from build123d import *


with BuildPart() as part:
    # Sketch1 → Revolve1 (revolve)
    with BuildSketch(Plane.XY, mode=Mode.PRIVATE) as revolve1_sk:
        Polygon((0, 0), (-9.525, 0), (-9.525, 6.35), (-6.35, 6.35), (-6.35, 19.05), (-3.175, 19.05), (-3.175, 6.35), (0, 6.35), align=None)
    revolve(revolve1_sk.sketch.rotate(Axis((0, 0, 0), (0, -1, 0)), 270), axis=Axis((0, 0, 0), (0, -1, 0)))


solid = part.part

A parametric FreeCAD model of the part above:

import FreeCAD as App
import Part
import Sketcher
from FreeCAD import Vector
Q = App.Units.Quantity


def add_polygon(sketch, points):
    """Adds a closed chain of lines whose ends are joined by coincident constraints."""
    first, n = sketch.GeometryCount, len(points)
    for a, b in zip(points, points[1:] + points[:1]):
        sketch.addGeometry(Part.LineSegment(App.Vector(*a, 0), App.Vector(*b, 0)), False)
    for i in range(n):
        sketch.addConstraint(Sketcher.Constraint("Coincident", first + i, 2, first + (i + 1) % n, 1))

doc = App.newDocument("Part")
body = doc.addObject("PartDesign::Body", "Body")

# Sketch on XY plane
sketch1 = body.newObject("Sketcher::SketchObject", "Sketch")
sketch1.AttachmentSupport = (doc.getObject("XY_Plane"), [""])
sketch1.MapMode = "FlatFace"
add_polygon(sketch1, [(-9.5, 0), (0, 0), (0, 6.3), (-3.2, 6.3), (-3.2, 19.1), (-6.3, 19.1), (-6.3, 6.3), (-9.5, 6.3)])  # lines 0-7
sketch1.addConstraint([
    Sketcher.Constraint("Horizontal", 0),
    Sketcher.Constraint("Vertical", 1),
    Sketcher.Constraint("Horizontal", 2),
    Sketcher.Constraint("Vertical", 3),
    Sketcher.Constraint("Horizontal", 4),
    Sketcher.Constraint("Vertical", 5),
    Sketcher.Constraint("Horizontal", 6),
    Sketcher.Constraint("Vertical", 7),
    Sketcher.Constraint("Coincident", 0, 2, -1, 1),
    Sketcher.Constraint("Horizontal", 2, 2, 5, 2),
    Sketcher.Constraint("Equal", 2, 4),
    Sketcher.Constraint("Equal", 4, 6),
    Sketcher.Constraint("DistanceY", 3, 1, 3, 2, Q("0.5 in")),
    Sketcher.Constraint("DistanceY", 1, 1, 1, 2, Q("0.25 in")),
    Sketcher.Constraint("DistanceX", 0, 1, 0, 2, Q("0.375 in")),
])
revolution = body.newObject("PartDesign::Revolution", "Revolution")
revolution.Profile = sketch1
revolution.ReferenceAxis = (sketch1, ["V_Axis"])
revolution.Angle = 360

doc.recompute()
